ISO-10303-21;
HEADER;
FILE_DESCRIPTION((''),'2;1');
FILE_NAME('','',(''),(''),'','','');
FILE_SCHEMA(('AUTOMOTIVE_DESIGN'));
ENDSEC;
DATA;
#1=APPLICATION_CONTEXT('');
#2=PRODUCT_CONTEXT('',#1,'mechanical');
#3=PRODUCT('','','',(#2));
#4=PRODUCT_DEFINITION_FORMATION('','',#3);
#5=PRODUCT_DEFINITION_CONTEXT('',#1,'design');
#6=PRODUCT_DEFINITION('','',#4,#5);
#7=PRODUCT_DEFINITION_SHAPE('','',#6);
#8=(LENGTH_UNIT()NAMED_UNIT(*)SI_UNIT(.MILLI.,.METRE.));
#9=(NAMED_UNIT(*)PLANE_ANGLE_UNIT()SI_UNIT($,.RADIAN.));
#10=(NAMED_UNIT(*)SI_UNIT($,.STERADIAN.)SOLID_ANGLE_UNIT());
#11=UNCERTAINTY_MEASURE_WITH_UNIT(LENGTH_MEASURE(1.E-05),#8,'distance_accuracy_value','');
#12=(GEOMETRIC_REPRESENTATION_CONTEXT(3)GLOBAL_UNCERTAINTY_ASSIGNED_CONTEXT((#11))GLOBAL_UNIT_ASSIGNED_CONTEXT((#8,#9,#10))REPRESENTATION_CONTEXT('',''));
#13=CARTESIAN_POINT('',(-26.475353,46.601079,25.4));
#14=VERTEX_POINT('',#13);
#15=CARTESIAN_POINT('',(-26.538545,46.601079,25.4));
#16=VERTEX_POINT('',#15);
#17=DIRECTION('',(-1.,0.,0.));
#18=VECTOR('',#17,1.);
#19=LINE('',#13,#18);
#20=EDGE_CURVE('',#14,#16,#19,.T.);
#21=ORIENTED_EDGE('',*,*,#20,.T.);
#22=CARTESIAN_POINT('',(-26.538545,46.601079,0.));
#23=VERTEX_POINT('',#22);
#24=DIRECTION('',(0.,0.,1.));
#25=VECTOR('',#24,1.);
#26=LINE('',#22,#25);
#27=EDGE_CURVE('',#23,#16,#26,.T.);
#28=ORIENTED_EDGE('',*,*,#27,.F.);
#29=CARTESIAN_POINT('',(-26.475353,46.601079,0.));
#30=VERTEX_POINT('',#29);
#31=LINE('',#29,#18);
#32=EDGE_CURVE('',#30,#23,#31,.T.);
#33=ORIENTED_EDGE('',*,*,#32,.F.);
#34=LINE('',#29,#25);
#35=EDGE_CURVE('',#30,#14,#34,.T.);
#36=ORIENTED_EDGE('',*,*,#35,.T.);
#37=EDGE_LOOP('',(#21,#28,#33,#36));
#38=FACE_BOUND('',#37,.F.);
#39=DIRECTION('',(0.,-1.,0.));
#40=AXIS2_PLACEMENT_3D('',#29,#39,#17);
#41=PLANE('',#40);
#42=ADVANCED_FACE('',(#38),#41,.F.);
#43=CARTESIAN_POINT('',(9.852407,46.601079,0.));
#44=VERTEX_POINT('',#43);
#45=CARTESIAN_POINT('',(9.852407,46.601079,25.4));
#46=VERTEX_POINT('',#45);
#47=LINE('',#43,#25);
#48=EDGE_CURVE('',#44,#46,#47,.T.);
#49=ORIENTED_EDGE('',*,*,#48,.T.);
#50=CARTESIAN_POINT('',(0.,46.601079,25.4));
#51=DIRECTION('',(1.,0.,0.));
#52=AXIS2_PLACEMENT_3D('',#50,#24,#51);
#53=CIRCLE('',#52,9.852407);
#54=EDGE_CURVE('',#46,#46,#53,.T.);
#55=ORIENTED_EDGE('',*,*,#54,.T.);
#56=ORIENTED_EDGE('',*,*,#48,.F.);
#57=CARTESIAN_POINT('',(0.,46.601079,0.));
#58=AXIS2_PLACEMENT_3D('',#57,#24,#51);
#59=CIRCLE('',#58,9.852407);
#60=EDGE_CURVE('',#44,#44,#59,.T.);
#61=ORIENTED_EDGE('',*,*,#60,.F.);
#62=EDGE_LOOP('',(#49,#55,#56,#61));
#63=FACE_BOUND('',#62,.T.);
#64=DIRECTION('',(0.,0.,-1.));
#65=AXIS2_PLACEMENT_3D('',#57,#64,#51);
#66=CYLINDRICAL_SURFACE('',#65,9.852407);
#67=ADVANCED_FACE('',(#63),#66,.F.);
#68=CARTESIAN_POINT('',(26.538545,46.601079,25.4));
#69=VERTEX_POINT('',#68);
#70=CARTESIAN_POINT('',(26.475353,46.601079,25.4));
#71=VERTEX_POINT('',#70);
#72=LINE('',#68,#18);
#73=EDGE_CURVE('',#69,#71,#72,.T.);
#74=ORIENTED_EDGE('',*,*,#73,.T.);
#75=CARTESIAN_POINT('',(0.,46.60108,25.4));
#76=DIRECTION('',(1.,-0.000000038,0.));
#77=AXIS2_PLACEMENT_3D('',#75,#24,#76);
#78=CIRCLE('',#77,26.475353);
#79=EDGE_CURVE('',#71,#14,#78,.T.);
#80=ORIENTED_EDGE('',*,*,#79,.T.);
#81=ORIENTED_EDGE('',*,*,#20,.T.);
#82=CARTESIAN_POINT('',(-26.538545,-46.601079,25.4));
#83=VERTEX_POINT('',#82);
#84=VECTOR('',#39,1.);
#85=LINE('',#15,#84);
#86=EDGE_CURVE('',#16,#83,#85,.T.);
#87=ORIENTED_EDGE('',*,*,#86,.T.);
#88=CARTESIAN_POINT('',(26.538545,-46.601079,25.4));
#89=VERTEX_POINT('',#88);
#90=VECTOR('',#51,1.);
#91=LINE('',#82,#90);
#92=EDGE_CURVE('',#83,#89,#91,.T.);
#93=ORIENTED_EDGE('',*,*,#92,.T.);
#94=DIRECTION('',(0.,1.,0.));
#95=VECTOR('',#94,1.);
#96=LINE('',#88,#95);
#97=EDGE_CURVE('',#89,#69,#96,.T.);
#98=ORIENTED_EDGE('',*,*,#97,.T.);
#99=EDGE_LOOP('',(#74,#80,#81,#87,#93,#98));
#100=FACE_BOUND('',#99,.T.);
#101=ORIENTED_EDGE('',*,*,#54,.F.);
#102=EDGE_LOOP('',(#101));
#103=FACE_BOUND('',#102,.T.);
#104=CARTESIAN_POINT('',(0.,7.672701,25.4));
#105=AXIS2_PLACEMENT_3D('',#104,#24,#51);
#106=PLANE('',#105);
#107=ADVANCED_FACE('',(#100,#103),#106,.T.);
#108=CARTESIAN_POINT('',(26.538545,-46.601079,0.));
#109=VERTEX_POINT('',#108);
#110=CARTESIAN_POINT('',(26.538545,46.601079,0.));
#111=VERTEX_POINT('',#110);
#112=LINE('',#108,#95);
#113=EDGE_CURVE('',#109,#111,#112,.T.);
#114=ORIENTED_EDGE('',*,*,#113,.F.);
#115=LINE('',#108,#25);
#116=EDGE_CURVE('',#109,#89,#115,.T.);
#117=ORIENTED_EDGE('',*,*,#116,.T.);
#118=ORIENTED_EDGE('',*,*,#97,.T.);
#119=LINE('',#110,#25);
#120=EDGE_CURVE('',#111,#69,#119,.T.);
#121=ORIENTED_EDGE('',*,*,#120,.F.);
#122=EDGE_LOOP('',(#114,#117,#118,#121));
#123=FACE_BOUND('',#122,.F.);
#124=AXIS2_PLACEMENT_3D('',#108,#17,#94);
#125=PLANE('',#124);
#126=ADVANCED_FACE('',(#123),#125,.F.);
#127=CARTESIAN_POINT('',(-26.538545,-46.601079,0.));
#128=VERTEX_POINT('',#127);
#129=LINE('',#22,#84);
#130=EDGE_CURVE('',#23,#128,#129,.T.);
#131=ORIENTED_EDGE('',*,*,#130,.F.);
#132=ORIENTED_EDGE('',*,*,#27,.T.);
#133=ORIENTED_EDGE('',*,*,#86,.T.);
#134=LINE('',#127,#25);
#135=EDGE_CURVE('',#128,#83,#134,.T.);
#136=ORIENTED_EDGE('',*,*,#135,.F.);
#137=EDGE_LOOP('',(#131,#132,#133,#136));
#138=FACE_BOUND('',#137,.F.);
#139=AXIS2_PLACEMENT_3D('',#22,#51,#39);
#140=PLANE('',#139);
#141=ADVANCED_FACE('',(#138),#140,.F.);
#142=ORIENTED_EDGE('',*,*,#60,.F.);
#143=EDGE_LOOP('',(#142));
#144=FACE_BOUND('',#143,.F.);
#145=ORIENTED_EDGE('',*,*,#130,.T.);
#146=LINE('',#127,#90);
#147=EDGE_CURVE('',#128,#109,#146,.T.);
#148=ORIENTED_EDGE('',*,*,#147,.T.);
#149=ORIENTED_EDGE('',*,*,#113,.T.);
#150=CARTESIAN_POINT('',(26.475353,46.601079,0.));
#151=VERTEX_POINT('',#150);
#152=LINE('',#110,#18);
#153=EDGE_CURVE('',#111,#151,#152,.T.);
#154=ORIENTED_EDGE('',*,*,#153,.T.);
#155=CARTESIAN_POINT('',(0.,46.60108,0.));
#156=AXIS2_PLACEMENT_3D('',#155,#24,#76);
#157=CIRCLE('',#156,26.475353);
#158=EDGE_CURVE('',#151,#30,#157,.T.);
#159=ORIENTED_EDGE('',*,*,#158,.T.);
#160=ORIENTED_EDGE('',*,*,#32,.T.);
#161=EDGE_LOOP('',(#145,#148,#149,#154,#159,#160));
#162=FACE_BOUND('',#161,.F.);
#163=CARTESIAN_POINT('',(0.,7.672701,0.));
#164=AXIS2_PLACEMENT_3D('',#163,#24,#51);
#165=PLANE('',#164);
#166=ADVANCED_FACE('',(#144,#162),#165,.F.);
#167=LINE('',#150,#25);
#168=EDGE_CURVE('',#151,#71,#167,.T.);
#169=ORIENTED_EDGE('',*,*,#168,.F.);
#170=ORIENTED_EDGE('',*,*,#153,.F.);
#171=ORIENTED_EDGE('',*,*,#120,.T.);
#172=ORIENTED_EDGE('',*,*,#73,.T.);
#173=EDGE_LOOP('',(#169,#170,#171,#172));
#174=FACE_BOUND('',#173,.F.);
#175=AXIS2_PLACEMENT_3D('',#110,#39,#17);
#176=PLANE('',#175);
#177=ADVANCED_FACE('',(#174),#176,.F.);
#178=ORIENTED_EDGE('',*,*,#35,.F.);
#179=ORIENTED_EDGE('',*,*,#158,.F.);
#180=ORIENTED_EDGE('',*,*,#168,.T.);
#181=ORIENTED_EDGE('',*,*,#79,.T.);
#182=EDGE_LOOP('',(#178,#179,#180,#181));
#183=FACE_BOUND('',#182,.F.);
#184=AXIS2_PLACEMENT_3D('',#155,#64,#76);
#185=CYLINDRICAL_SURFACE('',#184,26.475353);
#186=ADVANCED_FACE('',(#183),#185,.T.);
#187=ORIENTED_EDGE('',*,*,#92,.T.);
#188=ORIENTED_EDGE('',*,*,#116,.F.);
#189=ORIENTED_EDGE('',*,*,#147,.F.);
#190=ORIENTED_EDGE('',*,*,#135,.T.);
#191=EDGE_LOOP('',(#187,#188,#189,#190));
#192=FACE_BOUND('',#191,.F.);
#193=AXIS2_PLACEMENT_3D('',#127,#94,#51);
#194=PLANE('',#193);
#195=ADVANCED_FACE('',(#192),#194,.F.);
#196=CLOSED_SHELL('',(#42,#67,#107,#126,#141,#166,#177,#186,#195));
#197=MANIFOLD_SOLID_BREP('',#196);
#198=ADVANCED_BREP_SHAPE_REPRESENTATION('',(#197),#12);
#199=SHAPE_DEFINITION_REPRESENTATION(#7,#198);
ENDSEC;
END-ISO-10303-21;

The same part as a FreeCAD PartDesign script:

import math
import FreeCAD as App
import Part
import Sketcher

V = App.Vector
Q = App.Units.Quantity

doc = App.newDocument("Part")
body = doc.addObject("PartDesign::Body", "Body")

sketch1 = body.newObject("Sketcher::SketchObject", "Sketch")
sketch1.AttachmentSupport = (doc.getObject("XY_Plane"), [""])
sketch1.MapMode = "FlatFace"
sketch1.addGeometry(Part.LineSegment(V(-26.48, 46.6, 0), V(-26.54, 46.6, 0)), False)
sketch1.addGeometry(Part.LineSegment(V(-26.54, 46.6, 0), V(-26.54, -46.6, 0)), False)
sketch1.addGeometry(Part.LineSegment(V(-26.54, -46.6, 0), V(26.54, -46.6, 0)), False)
sketch1.addGeometry(Part.LineSegment(V(26.54, -46.6, 0), V(26.54, 46.6, 0)), False)
sketch1.addGeometry(Part.LineSegment(V(26.54, 46.6, 0), V(26.48, 46.6, 0)), False)
sketch1.addGeometry(Part.ArcOfCircle(Part.Circle(V(0, 46.6, 0), V(0, 0, 1), 26.48), math.radians(0), math.radians(180)), False)
sketch1.addGeometry(Part.Circle(V(0, 46.6, 0), V(0, 0, 1), 9.85), False)
sketch1.addConstraint(Sketcher.Constraint("Coincident", 0, 2, 1, 1))
sketch1.addConstraint(Sketcher.Constraint("Coincident", 1, 2, 2, 1))
sketch1.addConstraint(Sketcher.Constraint("Coincident", 2, 2, 3, 1))
sketch1.addConstraint(Sketcher.Constraint("Coincident", 3, 2, 4, 1))
sketch1.addConstraint(Sketcher.Constraint("Coincident", 4, 2, 5, 1))
sketch1.addConstraint(Sketcher.Constraint("Coincident", 5, 2, 0, 1))
sketch1.addConstraint(Sketcher.Constraint("Horizontal", 0))
sketch1.addConstraint(Sketcher.Constraint("Vertical", 1))
sketch1.addConstraint(Sketcher.Constraint("Horizontal", 2))
sketch1.addConstraint(Sketcher.Constraint("Vertical", 3))
sketch1.addConstraint(Sketcher.Constraint("Horizontal", 4))
sketch1.addConstraint(Sketcher.Constraint("Coincident", 6, 3, 5, 3))
sketch1.addConstraint(Sketcher.Constraint("Symmetric", 0, 2, 2, 2, -1, 1))
sketch1.addConstraint(Sketcher.Constraint("Symmetric", 4, 2, 5, 2, -2))
sketch1.addConstraint(Sketcher.Constraint("Horizontal", 6, 3, 0, 2))
sketch1.addConstraint(Sketcher.Constraint("Diameter", 6, 19.704814))
sketch1.addConstraint(Sketcher.Constraint("Radius", 5, 26.475353))
sketch1.addConstraint(Sketcher.Constraint("DistanceX", 2, 1, 2, 2, 53.07709))
sketch1.addConstraint(Sketcher.Constraint("DistanceY", 1, 2, 1, 1, 93.202158))
pad1 = body.newObject("PartDesign::Pad", "Pad")
pad1.Profile = sketch1
pad1.Length = Q("1 in")

doc.recompute()
